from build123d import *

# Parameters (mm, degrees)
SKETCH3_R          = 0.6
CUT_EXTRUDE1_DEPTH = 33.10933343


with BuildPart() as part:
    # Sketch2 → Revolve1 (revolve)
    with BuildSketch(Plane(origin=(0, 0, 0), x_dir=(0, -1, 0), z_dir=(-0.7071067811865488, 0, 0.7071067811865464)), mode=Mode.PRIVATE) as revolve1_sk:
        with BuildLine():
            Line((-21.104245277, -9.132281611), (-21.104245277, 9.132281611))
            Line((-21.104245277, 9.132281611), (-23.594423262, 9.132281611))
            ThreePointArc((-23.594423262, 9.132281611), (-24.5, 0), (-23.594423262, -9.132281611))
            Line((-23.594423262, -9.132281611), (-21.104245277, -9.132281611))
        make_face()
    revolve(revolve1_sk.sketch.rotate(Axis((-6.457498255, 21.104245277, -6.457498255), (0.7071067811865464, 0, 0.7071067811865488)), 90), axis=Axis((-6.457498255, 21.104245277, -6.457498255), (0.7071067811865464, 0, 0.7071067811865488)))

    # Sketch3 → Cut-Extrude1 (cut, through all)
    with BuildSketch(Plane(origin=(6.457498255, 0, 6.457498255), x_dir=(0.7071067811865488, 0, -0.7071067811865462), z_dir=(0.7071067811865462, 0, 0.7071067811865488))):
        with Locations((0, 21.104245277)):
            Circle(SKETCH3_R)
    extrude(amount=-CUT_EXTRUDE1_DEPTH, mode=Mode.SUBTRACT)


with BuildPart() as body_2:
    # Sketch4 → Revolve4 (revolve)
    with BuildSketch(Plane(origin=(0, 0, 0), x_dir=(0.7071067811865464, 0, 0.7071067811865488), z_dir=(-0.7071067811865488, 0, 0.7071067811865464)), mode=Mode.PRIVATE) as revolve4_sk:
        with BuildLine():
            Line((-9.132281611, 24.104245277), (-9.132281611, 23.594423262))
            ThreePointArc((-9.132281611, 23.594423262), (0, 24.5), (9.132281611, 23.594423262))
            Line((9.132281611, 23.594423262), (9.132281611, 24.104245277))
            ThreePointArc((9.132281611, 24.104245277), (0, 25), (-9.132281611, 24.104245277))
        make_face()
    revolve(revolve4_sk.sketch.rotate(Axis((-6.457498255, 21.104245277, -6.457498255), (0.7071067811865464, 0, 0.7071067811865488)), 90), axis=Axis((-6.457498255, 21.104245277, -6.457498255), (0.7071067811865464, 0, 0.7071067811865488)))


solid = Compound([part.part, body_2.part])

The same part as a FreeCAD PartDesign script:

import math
import FreeCAD as App
import Part
import Sketcher

V = App.Vector
Q = App.Units.Quantity

doc = App.newDocument("Part")
params = doc.addObject("Spreadsheet::Sheet", "Params")
for row, (alias, value) in enumerate([
    ("sketch1_radius", "46.5 mm"),
    ("revolution_angle", "360 deg"),
    ("sketch2_diameter", "1.2 mm"),
    ("sketch3_radius", "47 mm"),
    ("sketch3_radius2", "46.5 mm"),
    ("revolution2_angle", "360 deg"),
], start=1):
    params.set(f"A{row}", alias)
    params.set(f"B{row}", "=" + value)
    params.setAlias(f"B{row}", alias)

body = doc.addObject("PartDesign::Body", "Body")

sketch1 = doc.addObject("Sketcher::SketchObject", "Sketch")
body.addObject(sketch1)
sketch1.Placement = App.Placement(V(0, 0, 0), App.Rotation(V(0, -1, 0), V(0.707106781, 0, 0.707106781), V(-0.707106781, 0, 0.707106781), "ZXY"))
sketch1.addGeometry([
    Part.LineSegment(V(-21.104245, -9.132282, 0), V(-21.104245, 9.132282, 0)),
    Part.LineSegment(V(-21.104245, 9.132282, 0), V(-23.594423, 9.132282, 0)),
    Part.ArcOfCircle(Part.Circle(V(22, 0, 0), V(0, 0, 1), 46.5), math.radians(168.673881), math.radians(191.326119)),
    Part.LineSegment(V(-23.594423, -9.132282, 0), V(-21.104245, -9.132282, 0)),
], False)
sketch1.addGeometry(Part.LineSegment(V(-21.104245, -9.132282, 0), V(-21.104245, 9.132282, 0)), True)
sketch1.addConstraint([
    Sketcher.Constraint("Coincident", 0, 2, 1, 1),
    Sketcher.Constraint("Coincident", 1, 2, 2, 1),
    Sketcher.Constraint("Coincident", 2, 2, 3, 1),
    Sketcher.Constraint("Coincident", 3, 2, 0, 1),
    Sketcher.Constraint("Vertical", 0),
    Sketcher.Constraint("Horizontal", 1),
    Sketcher.Constraint("Horizontal", 3),
    Sketcher.Constraint("Vertical", 4),
    Sketcher.Constraint("Coincident", 4, 1, 3, 2),
    Sketcher.Constraint("Symmetric", 1, 2, 2, 2, -1),
    Sketcher.Constraint("Horizontal", 1, 2, 4, 2),
    Sketcher.Constraint("Radius", 2, Q("46.5 mm")),
    Sketcher.Constraint("DistanceX", -1, 1, 2, 3, Q("22 mm")),
    Sketcher.Constraint("DistanceX", 1, 2, 1, 1, Q("2.490178 mm")),
    Sketcher.Constraint("DistanceY", 0, 1, 0, 2, Q("18.264563 mm")),
])
sketch1.setExpression("Constraints[11]", "Params.sketch1_radius")
revolution = doc.addObject("PartDesign::Revolution", "Revolution")
body.addObject(revolution)
revolution.Profile = sketch1
revolution.ReferenceAxis = (sketch1, ["Axis0"])
revolution.setExpression("Angle", "Params.revolution_angle")

sketch2 = doc.addObject("Sketcher::SketchObject", "Sketch001")
body.addObject(sketch2)
sketch2.Placement = App.Placement(V(6.457498, 0, 6.457498), App.Rotation(V(0.707106781, 0, -0.707106781), V(0, 0.999999999, 0), V(0.707106781, 0, 0.707106781), "ZXY"))
sketch2.addGeometry(Part.Circle(V(0, 21.104245, 0), V(0, 0, 1), 0.6), False)
sketch2.addConstraint([
    Sketcher.Constraint("PointOnObject", 0, 3, -2),
    Sketcher.Constraint("Diameter", 0, Q("1.2 mm")),
    Sketcher.Constraint("DistanceY", -1, 1, 0, 3, Q("21.104245 mm")),
])
sketch2.setExpression("Constraints[1]", "Params.sketch2_diameter")
pocket1 = doc.addObject("PartDesign::Pocket", "Pocket")
body.addObject(pocket1)
pocket1.Profile = sketch2
pocket1.Type = "ThroughAll"
body2 = doc.addObject("PartDesign::Body", "Body001")

sketch3 = doc.addObject("Sketcher::SketchObject", "Sketch002")
body2.addObject(sketch3)
sketch3.Placement = App.Placement(V(0, 0, 0), App.Rotation(V(0.707106781, 0, 0.707106781), V(0, 0.999999999, 0), V(-0.707106781, 0, 0.707106781), "ZXY"))
sketch3.addGeometry([
    Part.LineSegment(V(-9.132282, 24.104245, 0), V(-9.132282, 23.594423, 0)),
    Part.ArcOfCircle(Part.Circle(V(0, -22, 0), V(0, 0, 1), 46.5), math.radians(78.673881), math.radians(101.326119)),
    Part.LineSegment(V(9.132282, 23.594423, 0), V(9.132282, 24.104245, 0)),
    Part.ArcOfCircle(Part.Circle(V(0, -22, 0), V(0, 0, 1), 47), math.radians(78.79594), math.radians(101.20406)),
], False)
sketch3.addGeometry(Part.LineSegment(V(-9.132282, 21.104245, 0), V(9.132282, 21.104245, 0)), True)
sketch3.addConstraint([
    Sketcher.Constraint("Coincident", 0, 2, 1, 2),
    Sketcher.Constraint("Coincident", 1, 1, 2, 1),
    Sketcher.Constraint("Coincident", 2, 2, 3, 1),
    Sketcher.Constraint("Coincident", 3, 2, 0, 1),
    Sketcher.Constraint("Vertical", 0),
    Sketcher.Constraint("Vertical", 2),
    Sketcher.Constraint("Horizontal", 4),
    Sketcher.Constraint("Coincident", 3, 3, 1, 3),
    Sketcher.Constraint("Symmetric", 0, 2, 1, 1, -2),
    Sketcher.Constraint("Vertical", 3, 2, 4, 1),
    Sketcher.Constraint("Vertical", 2, 2, 4, 2),
    Sketcher.Constraint("Radius", 3, Q("47 mm")),
    Sketcher.Constraint("Radius", 1, Q("46.5 mm")),
    Sketcher.Constraint("DistanceY", 1, 3, -1, 1, Q("22 mm")),
    Sketcher.Constraint("DistanceY", 4, 1, 3, 2, Q("3 mm")),
    Sketcher.Constraint("DistanceX", 4, 1, 4, 2, Q("18.264563 mm")),
])
sketch3.setExpression("Constraints[11]", "Params.sketch3_radius")
sketch3.setExpression("Constraints[12]", "Params.sketch3_radius2")
revolution2 = doc.addObject("PartDesign::Revolution", "Revolution001")
body2.addObject(revolution2)
revolution2.Profile = sketch3
revolution2.ReferenceAxis = (sketch3, ["Axis0"])
revolution2.setExpression("Angle", "Params.revolution2_angle")

doc.recompute()
